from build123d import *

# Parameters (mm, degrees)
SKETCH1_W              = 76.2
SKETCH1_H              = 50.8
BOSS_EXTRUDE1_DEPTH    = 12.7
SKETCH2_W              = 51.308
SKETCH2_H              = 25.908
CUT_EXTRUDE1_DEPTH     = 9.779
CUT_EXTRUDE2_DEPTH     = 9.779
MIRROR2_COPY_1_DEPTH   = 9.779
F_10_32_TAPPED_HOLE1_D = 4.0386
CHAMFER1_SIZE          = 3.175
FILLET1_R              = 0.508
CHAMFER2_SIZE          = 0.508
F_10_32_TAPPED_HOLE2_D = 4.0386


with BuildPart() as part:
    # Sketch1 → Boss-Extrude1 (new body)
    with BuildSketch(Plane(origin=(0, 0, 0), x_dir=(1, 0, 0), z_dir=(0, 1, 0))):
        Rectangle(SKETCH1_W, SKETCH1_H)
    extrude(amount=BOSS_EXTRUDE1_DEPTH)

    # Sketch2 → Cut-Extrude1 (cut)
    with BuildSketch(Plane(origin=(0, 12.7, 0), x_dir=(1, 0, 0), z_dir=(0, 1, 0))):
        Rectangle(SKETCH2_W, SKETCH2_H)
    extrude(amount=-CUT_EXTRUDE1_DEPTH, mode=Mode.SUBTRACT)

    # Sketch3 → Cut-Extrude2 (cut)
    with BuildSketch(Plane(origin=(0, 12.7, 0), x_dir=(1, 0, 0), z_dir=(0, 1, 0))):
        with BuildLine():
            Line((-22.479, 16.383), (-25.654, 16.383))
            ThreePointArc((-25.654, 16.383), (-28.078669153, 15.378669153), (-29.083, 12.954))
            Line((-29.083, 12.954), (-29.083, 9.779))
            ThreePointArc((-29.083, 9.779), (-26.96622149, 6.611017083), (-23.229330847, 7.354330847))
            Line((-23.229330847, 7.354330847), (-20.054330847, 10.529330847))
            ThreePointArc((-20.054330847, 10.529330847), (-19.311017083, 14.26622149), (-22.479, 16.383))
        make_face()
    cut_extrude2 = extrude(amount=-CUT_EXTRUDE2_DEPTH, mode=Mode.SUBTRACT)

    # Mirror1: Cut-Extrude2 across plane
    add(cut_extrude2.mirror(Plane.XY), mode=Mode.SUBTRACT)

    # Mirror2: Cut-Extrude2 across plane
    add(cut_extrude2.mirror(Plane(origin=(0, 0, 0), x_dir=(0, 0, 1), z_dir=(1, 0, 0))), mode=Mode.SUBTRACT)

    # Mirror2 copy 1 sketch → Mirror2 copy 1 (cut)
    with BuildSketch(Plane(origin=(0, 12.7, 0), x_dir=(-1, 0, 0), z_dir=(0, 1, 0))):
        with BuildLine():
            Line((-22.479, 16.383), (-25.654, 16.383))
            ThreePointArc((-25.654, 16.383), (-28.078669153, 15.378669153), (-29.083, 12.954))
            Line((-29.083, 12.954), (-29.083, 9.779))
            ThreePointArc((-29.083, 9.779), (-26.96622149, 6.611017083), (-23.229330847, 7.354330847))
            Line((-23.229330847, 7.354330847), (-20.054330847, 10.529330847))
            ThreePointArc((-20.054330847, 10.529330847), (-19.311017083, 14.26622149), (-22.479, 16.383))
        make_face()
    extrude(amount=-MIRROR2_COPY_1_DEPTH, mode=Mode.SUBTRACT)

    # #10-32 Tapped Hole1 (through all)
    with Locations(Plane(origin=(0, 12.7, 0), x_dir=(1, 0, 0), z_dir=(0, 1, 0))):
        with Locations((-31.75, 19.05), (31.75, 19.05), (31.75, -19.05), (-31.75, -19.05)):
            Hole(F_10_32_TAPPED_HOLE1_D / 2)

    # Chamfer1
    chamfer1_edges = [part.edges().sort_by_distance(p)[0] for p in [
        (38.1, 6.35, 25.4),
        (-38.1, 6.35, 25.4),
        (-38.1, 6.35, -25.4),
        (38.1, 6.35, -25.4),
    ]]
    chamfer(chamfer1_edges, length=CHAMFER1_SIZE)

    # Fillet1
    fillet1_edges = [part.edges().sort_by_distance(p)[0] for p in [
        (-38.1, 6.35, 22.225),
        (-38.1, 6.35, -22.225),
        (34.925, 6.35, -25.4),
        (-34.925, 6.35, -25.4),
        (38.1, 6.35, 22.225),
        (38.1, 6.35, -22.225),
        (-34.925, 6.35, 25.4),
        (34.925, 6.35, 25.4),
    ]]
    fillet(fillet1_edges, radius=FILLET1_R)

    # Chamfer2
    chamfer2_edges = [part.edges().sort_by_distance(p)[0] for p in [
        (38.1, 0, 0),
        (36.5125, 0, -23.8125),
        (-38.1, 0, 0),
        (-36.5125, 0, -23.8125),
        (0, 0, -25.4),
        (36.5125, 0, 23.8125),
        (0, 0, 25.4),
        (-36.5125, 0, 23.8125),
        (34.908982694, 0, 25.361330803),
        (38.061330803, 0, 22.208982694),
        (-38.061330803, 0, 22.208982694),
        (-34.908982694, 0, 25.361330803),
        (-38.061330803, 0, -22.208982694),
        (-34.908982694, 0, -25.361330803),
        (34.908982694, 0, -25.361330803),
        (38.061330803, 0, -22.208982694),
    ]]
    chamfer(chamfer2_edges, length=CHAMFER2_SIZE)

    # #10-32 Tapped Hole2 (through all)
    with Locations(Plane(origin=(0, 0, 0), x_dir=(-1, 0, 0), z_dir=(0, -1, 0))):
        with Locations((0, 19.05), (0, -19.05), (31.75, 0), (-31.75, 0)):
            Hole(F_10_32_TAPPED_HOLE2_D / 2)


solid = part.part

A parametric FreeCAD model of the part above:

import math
import FreeCAD as App
import Part
import Sketcher
Q = App.Units.Quantity


def edges_at(feature, points):
    """Names of the edges that pass closest to the given points."""
    edges = feature.Shape.Edges
    near = lambda p: min(range(len(edges)), key=lambda i: edges[i].distToShape(Part.Vertex(*p))[0])
    return sorted({f"Edge{near(p) + 1}" for p in points})


def add_polygon(sketch, points):
    """Adds a closed chain of lines whose ends are joined by coincident constraints."""
    first, n = sketch.GeometryCount, len(points)
    for a, b in zip(points, points[1:] + points[:1]):
        sketch.addGeometry(Part.LineSegment(App.Vector(*a, 0), App.Vector(*b, 0)), False)
    for i in range(n):
        sketch.addConstraint(Sketcher.Constraint("Coincident", first + i, 2, first + (i + 1) % n, 1))

doc = App.newDocument("Part")
params = doc.addObject("Spreadsheet::Sheet", "Params")
for row, (alias, value) in enumerate([
    ("sketch1_width", "3 in"),
    ("sketch1_height", "2 in"),
    ("pad1_length", "0.5 in"),
    ("sketch2_width", "2.02 in"),
    ("sketch2_height", "1.02 in"),
    ("pocket1_length", "0.385 in"),
    ("sketch3_radius", "0.135 in"),
    ("sketch3_width", "0.125 in"),
    ("pocket2_length", "0.385 in"),
    ("sketch4_radius", "0.135 in"),
    ("sketch4_width", "0.125 in"),
    ("pocket3_length", "0.385 in"),
    ("sketch5_diameter", "0.159 in"),
    ("hole_diameter", "0.159 in"),
    ("chamfer_size", "0.125 in"),
    ("fillet_radius", "0.02 in"),
    ("chamfer2_size", "0.02 in"),
    ("sketch6_diameter", "0.159 in"),
    ("hole2_diameter", "0.159 in"),
], start=1):
    params.set(f"A{row}", alias)
    params.set(f"B{row}", "=" + value)
    params.setAlias(f"B{row}", alias)

body = doc.addObject("PartDesign::Body", "Body")

sketch1 = body.newObject("Sketcher::SketchObject", "Sketch")
sketch1.AttachmentSupport = (doc.getObject("XZ_Plane"), [""])
sketch1.MapMode = "FlatFace"
add_polygon(sketch1, [(-38, -25), (-38, 25), (38, 25), (38, -25)])
sketch1.addConstraint(Sketcher.Constraint("Vertical", 0))
sketch1.addConstraint(Sketcher.Constraint("Horizontal", 1))
sketch1.addConstraint(Sketcher.Constraint("Vertical", 2))
sketch1.addConstraint(Sketcher.Constraint("Horizontal", 3))
sketch1.addConstraint(Sketcher.Constraint("Symmetric", 0, 2, 2, 2, -1, 1))
sketch1.addConstraint(Sketcher.Constraint("DistanceX", 1, 1, 1, 2, Q("3 in")))
sketch1.addConstraint(Sketcher.Constraint("DistanceY", 0, 1, 0, 2, Q("2 in")))
sketch1.setExpression("Constraints[9]", "Params.sketch1_width")
sketch1.setExpression("Constraints[10]", "Params.sketch1_height")
pad1 = body.newObject("PartDesign::Pad", "Pad")
pad1.Profile = sketch1
pad1.setExpression("Length", "Params.pad1_length")
pad1.Reversed = True

sketch2 = body.newObject("Sketcher::SketchObject", "Sketch001")
sketch2.AttachmentSupport = (doc.getObject("XZ_Plane"), [""])
sketch2.MapMode = "FlatFace"
sketch2.AttachmentOffset = App.Placement(App.Vector(0, 0, -0.5 * 25.4), App.Rotation())
add_polygon(sketch2, [(-26, -13), (-26, 13), (26, 13), (26, -13)])
sketch2.addConstraint(Sketcher.Constraint("Vertical", 0))
sketch2.addConstraint(Sketcher.Constraint("Horizontal", 1))
sketch2.addConstraint(Sketcher.Constraint("Vertical", 2))
sketch2.addConstraint(Sketcher.Constraint("Horizontal", 3))
sketch2.addConstraint(Sketcher.Constraint("Symmetric", 0, 2, 2, 2, -1, 1))
sketch2.addConstraint(Sketcher.Constraint("DistanceX", 1, 1, 1, 2, Q("2.02 in")))
sketch2.addConstraint(Sketcher.Constraint("DistanceY", 0, 1, 0, 2, Q("1.02 in")))
sketch2.setExpression("Constraints[9]", "Params.sketch2_width")
sketch2.setExpression("Constraints[10]", "Params.sketch2_height")
pocket1 = body.newObject("PartDesign::Pocket", "Pocket")
pocket1.Profile = sketch2
pocket1.setExpression("Length", "Params.pocket1_length")
pocket1.Reversed = True

sketch3 = body.newObject("Sketcher::SketchObject", "Sketch002")
sketch3.AttachmentSupport = (doc.getObject("XZ_Plane"), [""])
sketch3.MapMode = "FlatFace"
sketch3.AttachmentOffset = App.Placement(App.Vector(0, 0, -0.5 * 25.4), App.Rotation())
sketch3.addGeometry(Part.LineSegment(App.Vector(-22.5, -16.4, 0), App.Vector(-25.7, -16.4, 0)), False)
sketch3.addGeometry(Part.ArcOfCircle(Part.Circle(App.Vector(-25.7, -13, 0), App.Vector(0, 0, 1), 3.4), math.radians(180), math.radians(270)), False)
sketch3.addGeometry(Part.LineSegment(App.Vector(-29.1, -13, 0), App.Vector(-29.1, -9.8, 0)), False)
sketch3.addGeometry(Part.ArcOfCircle(Part.Circle(App.Vector(-25.7, -9.8, 0), App.Vector(0, 0, 1), 3.4), math.radians(45), math.radians(180)), False)
sketch3.addGeometry(Part.LineSegment(App.Vector(-23.2, -7.4, 0), App.Vector(-20.1, -10.5, 0)), False)
sketch3.addGeometry(Part.ArcOfCircle(Part.Circle(App.Vector(-22.5, -13, 0), App.Vector(0, 0, 1), 3.4), math.radians(-90), math.radians(45)), False)
sketch3.addConstraint(Sketcher.Constraint("Tangent", 0, 2, 1, 2))
sketch3.addConstraint(Sketcher.Constraint("Tangent", 1, 1, 2, 1))
sketch3.addConstraint(Sketcher.Constraint("Tangent", 2, 2, 3, 2))
sketch3.addConstraint(Sketcher.Constraint("Tangent", 3, 1, 4, 1))
sketch3.addConstraint(Sketcher.Constraint("Tangent", 4, 2, 5, 2))
sketch3.addConstraint(Sketcher.Constraint("Tangent", 5, 1, 0, 1))
sketch3.addConstraint(Sketcher.Constraint("Horizontal", 0))
sketch3.addConstraint(Sketcher.Constraint("Vertical", 2))
sketch3.addConstraint(Sketcher.Constraint("Equal", 1, 3))
sketch3.addConstraint(Sketcher.Constraint("Equal", 3, 5))
sketch3.addConstraint(Sketcher.Constraint("Equal", 0, 2))
sketch3.addConstraint(Sketcher.Constraint("Radius", 1, Q("0.135 in")))
sketch3.addConstraint(Sketcher.Constraint("DistanceX", 0, 2, 0, 1, Q("0.125 in")))
sketch3.addConstraint(Sketcher.Constraint("DistanceX", 1, 3, -1, 1, Q("1.01 in")))
sketch3.addConstraint(Sketcher.Constraint("DistanceY", 1, 3, -1, 1, Q("0.51 in")))
sketch3.setExpression("Constraints[11]", "Params.sketch3_radius")
sketch3.setExpression("Constraints[12]", "Params.sketch3_width")
pocket2 = body.newObject("PartDesign::Pocket", "Pocket001")
pocket2.Profile = sketch3
pocket2.setExpression("Length", "Params.pocket2_length")
pocket2.Reversed = True
doc.recompute()

mirrored = body.newObject("PartDesign::Mirrored", "Mirrored")
mirrored.Originals = [pocket2]
mirrored.MirrorPlane = (doc.getObject("XY_Plane"), [""])
body.Tip = mirrored
doc.recompute()

mirrored2 = body.newObject("PartDesign::Mirrored", "Mirrored001")
mirrored2.Originals = [pocket2]
mirrored2.MirrorPlane = (doc.getObject("YZ_Plane"), [""])
body.Tip = mirrored2

sketch4 = body.newObject("Sketcher::SketchObject", "Sketch003")
sketch4.AttachmentSupport = (doc.getObject("XZ_Plane"), [""])
sketch4.MapMode = "FlatFace"
sketch4.AttachmentOffset = App.Placement(App.Vector(0, 0, -0.5 * 25.4), App.Rotation())
sketch4.addGeometry(Part.LineSegment(App.Vector(22.5, 16.4, 0), App.Vector(25.7, 16.4, 0)), False)
sketch4.addGeometry(Part.ArcOfCircle(Part.Circle(App.Vector(25.7, 13, 0), App.Vector(0, 0, 1), 3.4), math.radians(0), math.radians(90)), False)
sketch4.addGeometry(Part.LineSegment(App.Vector(29.1, 13, 0), App.Vector(29.1, 9.8, 0)), False)
sketch4.addGeometry(Part.ArcOfCircle(Part.Circle(App.Vector(25.7, 9.8, 0), App.Vector(0, 0, 1), 3.4), math.radians(-135), math.radians(0)), False)
sketch4.addGeometry(Part.LineSegment(App.Vector(23.2, 7.4, 0), App.Vector(20.1, 10.5, 0)), False)
sketch4.addGeometry(Part.ArcOfCircle(Part.Circle(App.Vector(22.5, 13, 0), App.Vector(0, 0, 1), 3.4), math.radians(90), math.radians(225)), False)
sketch4.addConstraint(Sketcher.Constraint("Tangent", 0, 2, 1, 2))
sketch4.addConstraint(Sketcher.Constraint("Tangent", 1, 1, 2, 1))
sketch4.addConstraint(Sketcher.Constraint("Tangent", 2, 2, 3, 2))
sketch4.addConstraint(Sketcher.Constraint("Tangent", 3, 1, 4, 1))
sketch4.addConstraint(Sketcher.Constraint("Tangent", 4, 2, 5, 2))
sketch4.addConstraint(Sketcher.Constraint("Tangent", 5, 1, 0, 1))
sketch4.addConstraint(Sketcher.Constraint("Horizontal", 0))
sketch4.addConstraint(Sketcher.Constraint("Vertical", 2))
sketch4.addConstraint(Sketcher.Constraint("Equal", 1, 3))
sketch4.addConstraint(Sketcher.Constraint("Equal", 3, 5))
sketch4.addConstraint(Sketcher.Constraint("Equal", 0, 2))
sketch4.addConstraint(Sketcher.Constraint("Radius", 1, Q("0.135 in")))
sketch4.addConstraint(Sketcher.Constraint("DistanceX", 0, 1, 0, 2, Q("0.125 in")))
sketch4.addConstraint(Sketcher.Constraint("DistanceX", -1, 1, 1, 3, Q("1.01 in")))
sketch4.addConstraint(Sketcher.Constraint("DistanceY", -1, 1, 1, 3, Q("0.51 in")))
sketch4.setExpression("Constraints[11]", "Params.sketch4_radius")
sketch4.setExpression("Constraints[12]", "Params.sketch4_width")
pocket3 = body.newObject("PartDesign::Pocket", "Pocket002")
pocket3.Profile = sketch4
pocket3.setExpression("Length", "Params.pocket3_length")
pocket3.Reversed = True

sketch5 = body.newObject("Sketcher::SketchObject", "Sketch004")
sketch5.AttachmentSupport = (doc.getObject("XZ_Plane"), [""])
sketch5.MapMode = "FlatFace"
sketch5.AttachmentOffset = App.Placement(App.Vector(0, 0, -0.5 * 25.4), App.Rotation())
sketch5.addGeometry(Part.Circle(App.Vector(-31.8, -19.1, 0), App.Vector(0, 0, 1), 2), False)
sketch5.addGeometry(Part.Circle(App.Vector(31.8, -19.1, 0), App.Vector(0, 0, 1), 2), False)
sketch5.addGeometry(Part.Circle(App.Vector(31.8, 19.1, 0), App.Vector(0, 0, 1), 2), False)
sketch5.addGeometry(Part.Circle(App.Vector(-31.8, 19.1, 0), App.Vector(0, 0, 1), 2), False)
sketch5.addConstraint(Sketcher.Constraint("Equal", 0, 1))
sketch5.addConstraint(Sketcher.Constraint("Equal", 1, 2))
sketch5.addConstraint(Sketcher.Constraint("Equal", 2, 3))
sketch5.addConstraint(Sketcher.Constraint("Symmetric", 0, 3, 2, 3, -1, 1))
sketch5.addConstraint(Sketcher.Constraint("Symmetric", 1, 3, 3, 3, -1, 1))
sketch5.addConstraint(Sketcher.Constraint("Symmetric", 0, 3, 1, 3, -2))
sketch5.addConstraint(Sketcher.Constraint("Diameter", 0, Q("0.159 in")))
sketch5.addConstraint(Sketcher.Constraint("DistanceX", 0, 3, 1, 3, Q("2.5 in")))
sketch5.addConstraint(Sketcher.Constraint("DistanceY", 1, 3, 2, 3, Q("1.5 in")))
sketch5.setExpression("Constraints[6]", "Params.sketch5_diameter")
doc.recompute()
hole = body.newObject("PartDesign::Hole", "Hole")
hole.Profile = sketch5
hole.ThreadType = "None"
hole.setExpression("Diameter", "Params.hole_diameter")
hole.DepthType = "ThroughAll"
hole.Reversed = True
doc.recompute()

chamfer = body.newObject("PartDesign::Chamfer", "Chamfer")
chamfer.Base = (hole, edges_at(hole, [
    (38.1, 6.35, 25.4),
    (-38.1, 6.35, 25.4),
    (-38.1, 6.35, -25.4),
    (38.1, 6.35, -25.4),
]))
chamfer.setExpression("Size", "Params.chamfer_size")
doc.recompute()

fillet = body.newObject("PartDesign::Fillet", "Fillet")
fillet.Base = (chamfer, edges_at(chamfer, [
    (-38.1, 6.35, 22.225),
    (-38.1, 6.35, -22.225),
    (34.925, 6.35, -25.4),
    (-34.925, 6.35, -25.4),
    (38.1, 6.35, 22.225),
    (38.1, 6.35, -22.225),
    (-34.925, 6.35, 25.4),
    (34.925, 6.35, 25.4),
]))
fillet.setExpression("Radius", "Params.fillet_radius")
doc.recompute()

chamfer2 = body.newObject("PartDesign::Chamfer", "Chamfer001")
chamfer2.Base = (fillet, edges_at(fillet, [
    (38.1, 0, 0),
    (36.513, 0, -23.812),
    (-38.1, 0, 0),
    (-36.513, 0, -23.812),
    (0, 0, -25.4),
    (36.513, 0, 23.812),
    (0, 0, 25.4),
    (-36.513, 0, 23.812),
    (34.909, 0, 25.361),
    (38.061, 0, 22.209),
    (-38.061, 0, 22.209),
    (-34.909, 0, 25.361),
    (-38.061, 0, -22.209),
    (-34.909, 0, -25.361),
    (34.909, 0, -25.361),
    (38.061, 0, -22.209),
]))
chamfer2.setExpression("Size", "Params.chamfer2_size")

sketch6 = body.newObject("Sketcher::SketchObject", "Sketch005")
sketch6.AttachmentSupport = (doc.getObject("XZ_Plane"), [""])
sketch6.MapMode = "FlatFace"
sketch6.addGeometry(Part.Circle(App.Vector(0, -19.1, 0), App.Vector(0, 0, 1), 2), False)
sketch6.addGeometry(Part.Circle(App.Vector(0, 19.1, 0), App.Vector(0, 0, 1), 2), False)
sketch6.addGeometry(Part.Circle(App.Vector(-31.8, 0, 0), App.Vector(0, 0, 1), 2), False)
sketch6.addGeometry(Part.Circle(App.Vector(31.8, 0, 0), App.Vector(0, 0, 1), 2), False)
sketch6.addConstraint(Sketcher.Constraint("Equal", 0, 1))
sketch6.addConstraint(Sketcher.Constraint("Equal", 1, 2))
sketch6.addConstraint(Sketcher.Constraint("Equal", 2, 3))
sketch6.addConstraint(Sketcher.Constraint("Symmetric", 0, 3, 1, 3, -1, 1))
sketch6.addConstraint(Sketcher.Constraint("Symmetric", 2, 3, 3, 3, -1, 1))
sketch6.addConstraint(Sketcher.Constraint("PointOnObject", 0, 3, -2))
sketch6.addConstraint(Sketcher.Constraint("PointOnObject", 2, 3, -1))
sketch6.addConstraint(Sketcher.Constraint("Diameter", 0, Q("0.159 in")))
sketch6.addConstraint(Sketcher.Constraint("DistanceY", 0, 3, 1, 3, Q("1.5 in")))
sketch6.addConstraint(Sketcher.Constraint("DistanceX", 2, 3, 3, 3, Q("2.5 in")))
sketch6.setExpression("Constraints[7]", "Params.sketch6_diameter")
doc.recompute()
hole2 = body.newObject("PartDesign::Hole", "Hole001")
hole2.Profile = sketch6
hole2.ThreadType = "None"
hole2.setExpression("Diameter", "Params.hole2_diameter")
hole2.DepthType = "ThroughAll"

doc.recompute()
